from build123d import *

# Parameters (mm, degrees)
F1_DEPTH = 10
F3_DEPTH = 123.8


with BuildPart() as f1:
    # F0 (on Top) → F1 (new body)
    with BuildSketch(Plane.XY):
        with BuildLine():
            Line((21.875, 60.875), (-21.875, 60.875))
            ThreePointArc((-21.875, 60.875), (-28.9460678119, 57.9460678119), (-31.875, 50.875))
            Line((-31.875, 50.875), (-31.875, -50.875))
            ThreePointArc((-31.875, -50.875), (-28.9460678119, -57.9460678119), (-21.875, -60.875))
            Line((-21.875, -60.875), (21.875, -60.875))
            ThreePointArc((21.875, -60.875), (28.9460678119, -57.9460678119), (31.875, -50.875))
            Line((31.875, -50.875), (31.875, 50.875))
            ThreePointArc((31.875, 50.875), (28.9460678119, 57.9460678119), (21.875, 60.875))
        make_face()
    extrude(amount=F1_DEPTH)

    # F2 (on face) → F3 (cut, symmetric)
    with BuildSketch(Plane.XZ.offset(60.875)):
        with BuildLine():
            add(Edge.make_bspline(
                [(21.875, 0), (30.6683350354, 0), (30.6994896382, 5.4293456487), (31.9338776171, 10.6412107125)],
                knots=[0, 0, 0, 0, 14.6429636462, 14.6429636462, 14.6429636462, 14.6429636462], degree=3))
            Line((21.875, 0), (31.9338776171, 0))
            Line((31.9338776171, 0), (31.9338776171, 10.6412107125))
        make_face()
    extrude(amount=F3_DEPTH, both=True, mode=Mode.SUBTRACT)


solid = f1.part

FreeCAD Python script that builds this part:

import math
import FreeCAD as App
import Part
import Sketcher
Q = App.Units.Quantity

doc = App.newDocument("Part")
body = doc.addObject("PartDesign::Body", "Body")

# Sketch on XY plane
sketch1 = doc.addObject("Sketcher::SketchObject", "Sketch")
body.addObject(sketch1)
sketch1.AttachmentSupport = (doc.XY_Plane, [""])
sketch1.MapMode = "FlatFace"
sketch1.addGeometry([
    Part.LineSegment(App.Vector(22, 61, 0), App.Vector(-22, 61, 0)),  # 0
    Part.ArcOfCircle(Part.Circle(App.Vector(-22, 51, 0), App.Vector(0, 0, 1), 10), math.radians(90), math.radians(180)),  # 1
    Part.LineSegment(App.Vector(-32, 51, 0), App.Vector(-32, -51, 0)),  # 2
    Part.ArcOfCircle(Part.Circle(App.Vector(-22, -51, 0), App.Vector(0, 0, 1), 10), math.radians(180), math.radians(270)),  # 3
    Part.LineSegment(App.Vector(-22, -61, 0), App.Vector(22, -61, 0)),  # 4
    Part.ArcOfCircle(Part.Circle(App.Vector(22, -51, 0), App.Vector(0, 0, 1), 10), math.radians(-90), math.radians(0)),  # 5
    Part.LineSegment(App.Vector(32, -51, 0), App.Vector(32, 51, 0)),  # 6
    Part.ArcOfCircle(Part.Circle(App.Vector(22, 51, 0), App.Vector(0, 0, 1), 10), math.radians(0), math.radians(90)),  # 7
], False)
sketch1.addConstraint([
    Sketcher.Constraint("Tangent", 0, 2, 1, 1),
    Sketcher.Constraint("Tangent", 1, 2, 2, 1),
    Sketcher.Constraint("Tangent", 2, 2, 3, 1),
    Sketcher.Constraint("Tangent", 3, 2, 4, 1),
    Sketcher.Constraint("Tangent", 4, 2, 5, 1),
    Sketcher.Constraint("Tangent", 5, 2, 6, 1),
    Sketcher.Constraint("Tangent", 6, 2, 7, 1),
    Sketcher.Constraint("Tangent", 7, 2, 0, 1),
    Sketcher.Constraint("Horizontal", 0),
    Sketcher.Constraint("Vertical", 2),
    Sketcher.Constraint("Horizontal", 4),
    Sketcher.Constraint("Vertical", 6),
    Sketcher.Constraint("Equal", 1, 3),
    Sketcher.Constraint("Equal", 3, 5),
    Sketcher.Constraint("Equal", 5, 7),
    Sketcher.Constraint("Symmetric", 1, 3, 5, 3, -1, 1),
    Sketcher.Constraint("Radius", 1, Q("10 mm")),
    Sketcher.Constraint("DistanceX", 0, 2, 0, 1, Q("43.75 mm")),
    Sketcher.Constraint("DistanceY", 2, 2, 2, 1, Q("101.75 mm")),
])
pad1 = doc.addObject("PartDesign::Pad", "Pad")
body.addObject(pad1)
pad1.Profile = sketch1
pad1.Length = 10

# Sketch on XZ plane
sketch2 = doc.addObject("Sketcher::SketchObject", "Sketch001")
body.addObject(sketch2)
sketch2.AttachmentSupport = (doc.XZ_Plane, [""])
sketch2.MapMode = "FlatFace"
sketch2.AttachmentOffset = App.Placement(App.Vector(0, 0, 60.875), App.Rotation())
sketch2.addGeometry([
    Part.BSplineCurve([App.Vector(21.875, 0, 0), App.Vector(30.668335, 0, 0), App.Vector(30.69949, 5.429346, 0), App.Vector(31.933878, 10.641211, 0)], [4, 4], [0, 14.642963646], False, 3, [1, 1, 1, 1], False),
    Part.LineSegment(App.Vector(21.875, 0, 0), App.Vector(31.933878, 0, 0)),
    Part.LineSegment(App.Vector(31.933878, 0, 0), App.Vector(31.933878, 10.641211, 0)),
], False)
sketch2.addConstraint([
    Sketcher.Constraint("Block", 0),
    Sketcher.Constraint("Coincident", 0, 1, 1, 1),
    Sketcher.Constraint("Coincident", 1, 2, 2, 1),
    Sketcher.Constraint("Coincident", 2, 2, 0, 2),
    Sketcher.Constraint("Horizontal", 1),
    Sketcher.Constraint("Vertical", 2),
])
pocket1 = doc.addObject("PartDesign::Pocket", "Pocket")
body.addObject(pocket1)
pocket1.Profile = sketch2
pocket1.Length = 247.6
pocket1.Midplane = True

doc.recompute()
